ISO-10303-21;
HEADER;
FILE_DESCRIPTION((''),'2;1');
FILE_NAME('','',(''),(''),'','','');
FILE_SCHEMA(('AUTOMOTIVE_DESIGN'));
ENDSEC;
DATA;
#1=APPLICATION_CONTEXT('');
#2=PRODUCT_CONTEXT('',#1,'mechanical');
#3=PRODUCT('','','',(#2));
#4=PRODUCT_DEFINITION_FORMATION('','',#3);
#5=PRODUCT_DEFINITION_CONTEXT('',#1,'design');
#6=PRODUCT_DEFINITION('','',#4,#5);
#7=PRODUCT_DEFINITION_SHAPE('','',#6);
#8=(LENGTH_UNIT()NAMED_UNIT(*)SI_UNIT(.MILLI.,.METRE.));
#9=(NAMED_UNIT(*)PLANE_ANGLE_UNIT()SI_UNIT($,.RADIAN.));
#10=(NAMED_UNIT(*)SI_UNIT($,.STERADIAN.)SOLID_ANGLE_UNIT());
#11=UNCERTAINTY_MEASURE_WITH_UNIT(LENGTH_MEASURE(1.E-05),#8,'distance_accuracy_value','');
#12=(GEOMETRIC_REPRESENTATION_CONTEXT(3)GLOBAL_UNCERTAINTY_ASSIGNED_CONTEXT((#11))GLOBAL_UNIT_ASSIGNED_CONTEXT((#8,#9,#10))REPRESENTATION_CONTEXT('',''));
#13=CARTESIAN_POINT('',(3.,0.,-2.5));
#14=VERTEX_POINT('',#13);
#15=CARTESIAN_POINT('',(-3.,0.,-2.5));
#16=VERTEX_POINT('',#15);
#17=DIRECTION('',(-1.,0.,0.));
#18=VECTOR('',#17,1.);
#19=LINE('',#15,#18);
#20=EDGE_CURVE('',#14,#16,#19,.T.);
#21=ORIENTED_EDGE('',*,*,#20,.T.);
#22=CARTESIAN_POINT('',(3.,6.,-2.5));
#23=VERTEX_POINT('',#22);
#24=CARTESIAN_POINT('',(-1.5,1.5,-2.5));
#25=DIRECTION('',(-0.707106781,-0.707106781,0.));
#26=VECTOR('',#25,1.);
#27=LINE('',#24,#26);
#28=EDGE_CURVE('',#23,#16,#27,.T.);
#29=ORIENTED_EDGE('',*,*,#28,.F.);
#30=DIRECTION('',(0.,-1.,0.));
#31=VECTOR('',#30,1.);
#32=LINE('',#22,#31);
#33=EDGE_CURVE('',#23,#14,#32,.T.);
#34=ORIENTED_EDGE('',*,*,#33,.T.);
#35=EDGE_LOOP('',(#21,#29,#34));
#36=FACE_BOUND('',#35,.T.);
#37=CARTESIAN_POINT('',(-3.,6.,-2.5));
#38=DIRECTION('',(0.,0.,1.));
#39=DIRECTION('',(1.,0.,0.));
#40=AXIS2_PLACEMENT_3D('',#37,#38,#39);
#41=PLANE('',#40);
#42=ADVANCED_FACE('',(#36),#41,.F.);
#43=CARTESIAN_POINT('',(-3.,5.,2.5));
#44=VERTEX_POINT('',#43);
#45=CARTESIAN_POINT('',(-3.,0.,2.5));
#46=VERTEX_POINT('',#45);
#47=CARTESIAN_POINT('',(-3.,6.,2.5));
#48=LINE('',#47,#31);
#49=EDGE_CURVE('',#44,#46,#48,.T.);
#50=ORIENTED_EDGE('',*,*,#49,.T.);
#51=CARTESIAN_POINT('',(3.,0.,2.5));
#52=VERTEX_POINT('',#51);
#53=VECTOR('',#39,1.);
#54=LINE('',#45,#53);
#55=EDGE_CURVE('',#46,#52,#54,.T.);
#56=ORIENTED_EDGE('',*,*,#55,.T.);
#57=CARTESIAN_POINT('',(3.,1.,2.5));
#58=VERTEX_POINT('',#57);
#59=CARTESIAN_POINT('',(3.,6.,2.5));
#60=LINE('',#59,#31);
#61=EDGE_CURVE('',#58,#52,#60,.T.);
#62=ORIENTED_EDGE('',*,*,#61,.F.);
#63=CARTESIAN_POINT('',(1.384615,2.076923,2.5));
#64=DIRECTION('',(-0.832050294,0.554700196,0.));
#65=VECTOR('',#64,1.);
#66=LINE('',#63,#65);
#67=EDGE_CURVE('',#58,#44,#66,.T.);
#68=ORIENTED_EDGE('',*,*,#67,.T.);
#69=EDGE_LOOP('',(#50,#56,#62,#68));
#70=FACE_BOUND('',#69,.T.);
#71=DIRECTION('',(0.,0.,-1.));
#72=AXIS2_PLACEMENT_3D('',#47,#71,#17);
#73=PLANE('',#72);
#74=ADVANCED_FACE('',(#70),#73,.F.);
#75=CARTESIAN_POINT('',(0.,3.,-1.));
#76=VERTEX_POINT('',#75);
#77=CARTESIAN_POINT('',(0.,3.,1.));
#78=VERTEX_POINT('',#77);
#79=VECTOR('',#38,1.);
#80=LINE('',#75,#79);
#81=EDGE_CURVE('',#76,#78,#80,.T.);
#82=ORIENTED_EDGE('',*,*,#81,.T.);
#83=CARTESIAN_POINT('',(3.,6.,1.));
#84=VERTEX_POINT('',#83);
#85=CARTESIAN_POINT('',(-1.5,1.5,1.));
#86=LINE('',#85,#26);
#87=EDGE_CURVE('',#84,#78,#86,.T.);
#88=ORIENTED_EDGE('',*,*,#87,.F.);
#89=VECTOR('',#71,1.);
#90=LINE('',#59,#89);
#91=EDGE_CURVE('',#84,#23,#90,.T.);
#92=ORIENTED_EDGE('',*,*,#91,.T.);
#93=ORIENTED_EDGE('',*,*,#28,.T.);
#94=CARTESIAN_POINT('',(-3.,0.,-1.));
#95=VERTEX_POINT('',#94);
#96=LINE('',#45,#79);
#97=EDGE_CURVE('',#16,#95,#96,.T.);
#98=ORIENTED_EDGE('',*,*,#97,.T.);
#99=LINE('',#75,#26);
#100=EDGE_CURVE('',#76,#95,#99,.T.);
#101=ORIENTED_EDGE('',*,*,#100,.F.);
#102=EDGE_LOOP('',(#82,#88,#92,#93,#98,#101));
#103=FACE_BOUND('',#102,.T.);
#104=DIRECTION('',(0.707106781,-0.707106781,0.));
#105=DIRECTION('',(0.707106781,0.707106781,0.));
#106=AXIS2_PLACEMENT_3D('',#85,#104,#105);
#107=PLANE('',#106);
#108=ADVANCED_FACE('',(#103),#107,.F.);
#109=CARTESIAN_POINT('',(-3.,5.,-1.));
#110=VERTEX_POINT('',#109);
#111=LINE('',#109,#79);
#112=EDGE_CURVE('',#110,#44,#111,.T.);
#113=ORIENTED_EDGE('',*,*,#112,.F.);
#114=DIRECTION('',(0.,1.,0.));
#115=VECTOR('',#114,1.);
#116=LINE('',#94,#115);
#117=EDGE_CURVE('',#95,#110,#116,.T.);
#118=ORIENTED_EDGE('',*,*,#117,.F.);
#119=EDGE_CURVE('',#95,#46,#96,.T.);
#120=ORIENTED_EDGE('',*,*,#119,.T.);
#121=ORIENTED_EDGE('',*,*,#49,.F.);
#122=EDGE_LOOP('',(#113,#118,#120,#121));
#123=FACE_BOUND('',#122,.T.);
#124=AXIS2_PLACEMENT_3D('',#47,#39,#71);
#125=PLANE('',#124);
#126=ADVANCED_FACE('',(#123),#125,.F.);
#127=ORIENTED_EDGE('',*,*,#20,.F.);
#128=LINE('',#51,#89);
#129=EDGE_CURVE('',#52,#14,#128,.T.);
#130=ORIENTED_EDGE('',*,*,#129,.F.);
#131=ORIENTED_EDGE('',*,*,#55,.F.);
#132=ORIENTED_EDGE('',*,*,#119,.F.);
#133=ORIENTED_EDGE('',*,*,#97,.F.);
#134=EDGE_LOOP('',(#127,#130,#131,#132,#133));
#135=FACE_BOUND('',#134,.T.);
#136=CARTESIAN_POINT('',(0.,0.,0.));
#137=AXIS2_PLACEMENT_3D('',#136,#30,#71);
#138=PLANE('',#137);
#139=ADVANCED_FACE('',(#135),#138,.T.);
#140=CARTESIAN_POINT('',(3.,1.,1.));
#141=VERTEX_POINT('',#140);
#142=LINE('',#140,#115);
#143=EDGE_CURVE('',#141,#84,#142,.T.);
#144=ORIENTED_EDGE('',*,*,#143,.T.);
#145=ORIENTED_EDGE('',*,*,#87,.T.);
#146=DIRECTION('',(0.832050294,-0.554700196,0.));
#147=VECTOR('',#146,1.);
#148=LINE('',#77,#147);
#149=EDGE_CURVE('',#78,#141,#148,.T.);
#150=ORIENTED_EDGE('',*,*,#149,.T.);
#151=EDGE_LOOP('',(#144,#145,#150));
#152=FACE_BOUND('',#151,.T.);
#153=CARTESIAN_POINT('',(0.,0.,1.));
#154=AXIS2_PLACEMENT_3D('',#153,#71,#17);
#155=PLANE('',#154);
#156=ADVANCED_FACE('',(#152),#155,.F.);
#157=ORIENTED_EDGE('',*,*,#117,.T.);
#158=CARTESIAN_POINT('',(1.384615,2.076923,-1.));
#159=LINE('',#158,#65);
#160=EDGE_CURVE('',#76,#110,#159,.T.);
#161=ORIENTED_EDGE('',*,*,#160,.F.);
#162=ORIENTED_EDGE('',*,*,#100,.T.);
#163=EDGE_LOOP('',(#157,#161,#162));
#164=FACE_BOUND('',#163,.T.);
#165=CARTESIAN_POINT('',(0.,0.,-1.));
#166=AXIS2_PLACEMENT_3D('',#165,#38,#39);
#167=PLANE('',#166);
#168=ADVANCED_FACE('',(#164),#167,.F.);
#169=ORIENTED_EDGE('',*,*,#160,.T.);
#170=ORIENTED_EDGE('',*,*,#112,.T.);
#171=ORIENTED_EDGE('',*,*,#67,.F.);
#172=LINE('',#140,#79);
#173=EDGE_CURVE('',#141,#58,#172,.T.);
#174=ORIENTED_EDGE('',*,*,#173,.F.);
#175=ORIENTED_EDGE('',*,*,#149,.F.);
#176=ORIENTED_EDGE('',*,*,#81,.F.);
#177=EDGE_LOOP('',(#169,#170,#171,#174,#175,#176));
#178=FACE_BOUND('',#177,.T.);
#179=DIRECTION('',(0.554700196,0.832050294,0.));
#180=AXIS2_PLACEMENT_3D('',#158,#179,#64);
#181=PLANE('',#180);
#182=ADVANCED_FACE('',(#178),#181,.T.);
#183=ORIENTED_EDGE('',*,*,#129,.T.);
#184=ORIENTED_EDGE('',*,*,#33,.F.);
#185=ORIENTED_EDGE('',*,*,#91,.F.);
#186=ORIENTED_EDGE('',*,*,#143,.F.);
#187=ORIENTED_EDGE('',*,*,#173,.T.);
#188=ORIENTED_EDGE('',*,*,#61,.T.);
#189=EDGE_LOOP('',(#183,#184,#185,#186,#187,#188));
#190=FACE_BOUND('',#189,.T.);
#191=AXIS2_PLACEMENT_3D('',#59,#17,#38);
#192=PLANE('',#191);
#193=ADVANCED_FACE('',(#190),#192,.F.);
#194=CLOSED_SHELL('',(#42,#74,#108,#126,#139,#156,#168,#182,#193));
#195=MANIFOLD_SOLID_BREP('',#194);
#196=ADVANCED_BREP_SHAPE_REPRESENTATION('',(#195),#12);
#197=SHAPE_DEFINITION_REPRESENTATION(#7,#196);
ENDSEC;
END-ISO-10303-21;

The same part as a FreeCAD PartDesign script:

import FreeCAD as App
import Part
import Sketcher
from FreeCAD import Vector
Q = App.Units.Quantity

doc = App.newDocument("Part")
body = doc.addObject("PartDesign::Body", "Body")

# Sketch on XZ plane
sketch1 = body.newObject("Sketcher::SketchObject", "Sketch")
sketch1.AttachmentSupport = (doc.getObject("XZ_Plane"), [""])
sketch1.MapMode = "FlatFace"
sketch1.addGeometry([
    Part.LineSegment(Vector(-3, -2.5, 0), Vector(-3, 2.5, 0)),
    Part.LineSegment(Vector(-3, 2.5, 0), Vector(3, 2.5, 0)),
    Part.LineSegment(Vector(3, 2.5, 0), Vector(3, -2.5, 0)),
    Part.LineSegment(Vector(3, -2.5, 0), Vector(-3, -2.5, 0)),
], False)
sketch1.addConstraint([
    Sketcher.Constraint("Coincident", 0, 2, 1, 1),
    Sketcher.Constraint("Coincident", 1, 2, 2, 1),
    Sketcher.Constraint("Coincident", 2, 2, 3, 1),
    Sketcher.Constraint("Coincident", 3, 2, 0, 1),
    Sketcher.Constraint("Vertical", 0),
    Sketcher.Constraint("Horizontal", 1),
    Sketcher.Constraint("Vertical", 2),
    Sketcher.Constraint("Horizontal", 3),
    Sketcher.Constraint("Symmetric", 0, 2, 2, 2, -1, 1),
    Sketcher.Constraint("DistanceX", 1, 1, 1, 2, Q("6 mm")),
    Sketcher.Constraint("DistanceY", 0, 1, 0, 2, Q("5 mm")),
])
pad1 = body.newObject("PartDesign::Pad", "Pad")
pad1.Profile = sketch1
pad1.Length = 6
pad1.Reversed = True

# Sketch on XY plane
sketch2 = body.newObject("Sketcher::SketchObject", "Sketch001")
sketch2.AttachmentSupport = (doc.getObject("XY_Plane"), [""])
sketch2.MapMode = "FlatFace"
sketch2.AttachmentOffset = App.Placement(Vector(0, 0, 2.5), App.Rotation())
sketch2.addGeometry([
    Part.LineSegment(Vector(-3, 5, 0), Vector(0, 3, 0)),
    Part.LineSegment(Vector(0, 3, 0), Vector(0, 6, 0)),
    Part.LineSegment(Vector(0, 6, 0), Vector(-3, 6, 0)),
    Part.LineSegment(Vector(-3, 6, 0), Vector(-3, 5, 0)),
], False)
sketch2.addConstraint([
    Sketcher.Constraint("Coincident", 0, 2, 1, 1),
    Sketcher.Constraint("Coincident", 1, 2, 2, 1),
    Sketcher.Constraint("Coincident", 2, 2, 3, 1),
    Sketcher.Constraint("Coincident", 3, 2, 0, 1),
    Sketcher.Constraint("Vertical", 1),
    Sketcher.Constraint("Horizontal", 2),
    Sketcher.Constraint("Vertical", 3),
    Sketcher.Constraint("PointOnObject", 0, 2, -2),
    Sketcher.Constraint("Equal", 2, 1),
    Sketcher.Constraint("DistanceX", 2, 2, 2, 1, Q("3 mm")),
    Sketcher.Constraint("DistanceY", 3, 2, 3, 1, Q("1 mm")),
    Sketcher.Constraint("DistanceY", -1, 1, 0, 2, Q("3 mm")),
])
pocket1 = body.newObject("PartDesign::Pocket", "Pocket")
pocket1.Profile = sketch2
pocket1.Length = 3.5

# Sketch on XY plane
sketch3 = body.newObject("Sketcher::SketchObject", "Sketch002")
sketch3.AttachmentSupport = (doc.getObject("XY_Plane"), [""])
sketch3.MapMode = "FlatFace"
sketch3.AttachmentOffset = App.Placement(Vector(0, 0, 2.5), App.Rotation())
sketch3.addGeometry([
    Part.LineSegment(Vector(0, 3, 0), Vector(3, 1, 0)),
    Part.LineSegment(Vector(3, 1, 0), Vector(3, 6, 0)),
    Part.LineSegment(Vector(3, 6, 0), Vector(0, 6, 0)),
    Part.LineSegment(Vector(0, 6, 0), Vector(0, 3, 0)),
], False)
sketch3.addConstraint([
    Sketcher.Constraint("Coincident", 0, 2, 1, 1),
    Sketcher.Constraint("Coincident", 1, 2, 2, 1),
    Sketcher.Constraint("Coincident", 2, 2, 3, 1),
    Sketcher.Constraint("Coincident", 3, 2, 0, 1),
    Sketcher.Constraint("Vertical", 1),
    Sketcher.Constraint("Horizontal", 2),
    Sketcher.Constraint("Vertical", 3),
    Sketcher.Constraint("PointOnObject", 2, 2, -2),
    Sketcher.Constraint("Equal", 2, 3),
    Sketcher.Constraint("DistanceX", 2, 2, 2, 1, Q("3 mm")),
    Sketcher.Constraint("DistanceY", 1, 1, 1, 2, Q("5 mm")),
    Sketcher.Constraint("DistanceY", -1, 1, 0, 2, Q("1 mm")),
])
pocket2 = body.newObject("PartDesign::Pocket", "Pocket001")
pocket2.Profile = sketch3
pocket2.Length = 1.5

# Sketch on XY plane
sketch4 = body.newObject("Sketcher::SketchObject", "Sketch003")
sketch4.AttachmentSupport = (doc.getObject("XY_Plane"), [""])
sketch4.MapMode = "FlatFace"
sketch4.AttachmentOffset = App.Placement(Vector(0, 0, -2.5), App.Rotation())
sketch4.addGeometry([
    Part.LineSegment(Vector(0, 6, 0), Vector(3, 6, 0)),
    Part.LineSegment(Vector(3, 6, 0), Vector(0, 3, 0)),
    Part.LineSegment(Vector(0, 3, 0), Vector(0, 6, 0)),
], False)
sketch4.addConstraint([
    Sketcher.Constraint("Coincident", 0, 2, 1, 1),
    Sketcher.Constraint("Coincident", 1, 2, 2, 1),
    Sketcher.Constraint("Coincident", 2, 2, 0, 1),
    Sketcher.Constraint("Horizontal", 0),
    Sketcher.Constraint("Vertical", 2),
    Sketcher.Constraint("PointOnObject", 1, 2, -2),
    Sketcher.Constraint("Equal", 0, 2),
    Sketcher.Constraint("DistanceX", 0, 1, 0, 2, Q("3 mm")),
    Sketcher.Constraint("DistanceY", -1, 1, 0, 2, Q("6 mm")),
])
pocket3 = body.newObject("PartDesign::Pocket", "Pocket002")
pocket3.Profile = sketch4
pocket3.Length = 3.5
pocket3.Reversed = True

# Sketch on XY plane
sketch5 = body.newObject("Sketcher::SketchObject", "Sketch004")
sketch5.AttachmentSupport = (doc.getObject("XY_Plane"), [""])
sketch5.MapMode = "FlatFace"
sketch5.AttachmentOffset = App.Placement(Vector(0, 0, -2.5), App.Rotation())
sketch5.addGeometry([
    Part.LineSegment(Vector(0, 3, 0), Vector(-3, 0, 0)),
    Part.LineSegment(Vector(-3, 0, 0), Vector(-3, 6, 0)),
    Part.LineSegment(Vector(-3, 6, 0), Vector(0, 6, 0)),
    Part.LineSegment(Vector(0, 6, 0), Vector(0, 3, 0)),
], False)
sketch5.addConstraint([
    Sketcher.Constraint("Coincident", 0, 2, 1, 1),
    Sketcher.Constraint("Coincident", 1, 2, 2, 1),
    Sketcher.Constraint("Coincident", 2, 2, 3, 1),
    Sketcher.Constraint("Coincident", 3, 2, 0, 1),
    Sketcher.Constraint("Vertical", 1),
    Sketcher.Constraint("Horizontal", 2),
    Sketcher.Constraint("Vertical", 3),
    Sketcher.Constraint("PointOnObject", 0, 2, -1),
    Sketcher.Constraint("PointOnObject", 2, 2, -2),
    Sketcher.Constraint("Equal", 2, 3),
    Sketcher.Constraint("DistanceX", 2, 1, 2, 2, Q("3 mm")),
    Sketcher.Constraint("DistanceY", 1, 1, 1, 2, Q("6 mm")),
])
pocket4 = body.newObject("PartDesign::Pocket", "Pocket003")
pocket4.Profile = sketch5
pocket4.Length = 1.5
pocket4.Reversed = True

doc.recompute()
